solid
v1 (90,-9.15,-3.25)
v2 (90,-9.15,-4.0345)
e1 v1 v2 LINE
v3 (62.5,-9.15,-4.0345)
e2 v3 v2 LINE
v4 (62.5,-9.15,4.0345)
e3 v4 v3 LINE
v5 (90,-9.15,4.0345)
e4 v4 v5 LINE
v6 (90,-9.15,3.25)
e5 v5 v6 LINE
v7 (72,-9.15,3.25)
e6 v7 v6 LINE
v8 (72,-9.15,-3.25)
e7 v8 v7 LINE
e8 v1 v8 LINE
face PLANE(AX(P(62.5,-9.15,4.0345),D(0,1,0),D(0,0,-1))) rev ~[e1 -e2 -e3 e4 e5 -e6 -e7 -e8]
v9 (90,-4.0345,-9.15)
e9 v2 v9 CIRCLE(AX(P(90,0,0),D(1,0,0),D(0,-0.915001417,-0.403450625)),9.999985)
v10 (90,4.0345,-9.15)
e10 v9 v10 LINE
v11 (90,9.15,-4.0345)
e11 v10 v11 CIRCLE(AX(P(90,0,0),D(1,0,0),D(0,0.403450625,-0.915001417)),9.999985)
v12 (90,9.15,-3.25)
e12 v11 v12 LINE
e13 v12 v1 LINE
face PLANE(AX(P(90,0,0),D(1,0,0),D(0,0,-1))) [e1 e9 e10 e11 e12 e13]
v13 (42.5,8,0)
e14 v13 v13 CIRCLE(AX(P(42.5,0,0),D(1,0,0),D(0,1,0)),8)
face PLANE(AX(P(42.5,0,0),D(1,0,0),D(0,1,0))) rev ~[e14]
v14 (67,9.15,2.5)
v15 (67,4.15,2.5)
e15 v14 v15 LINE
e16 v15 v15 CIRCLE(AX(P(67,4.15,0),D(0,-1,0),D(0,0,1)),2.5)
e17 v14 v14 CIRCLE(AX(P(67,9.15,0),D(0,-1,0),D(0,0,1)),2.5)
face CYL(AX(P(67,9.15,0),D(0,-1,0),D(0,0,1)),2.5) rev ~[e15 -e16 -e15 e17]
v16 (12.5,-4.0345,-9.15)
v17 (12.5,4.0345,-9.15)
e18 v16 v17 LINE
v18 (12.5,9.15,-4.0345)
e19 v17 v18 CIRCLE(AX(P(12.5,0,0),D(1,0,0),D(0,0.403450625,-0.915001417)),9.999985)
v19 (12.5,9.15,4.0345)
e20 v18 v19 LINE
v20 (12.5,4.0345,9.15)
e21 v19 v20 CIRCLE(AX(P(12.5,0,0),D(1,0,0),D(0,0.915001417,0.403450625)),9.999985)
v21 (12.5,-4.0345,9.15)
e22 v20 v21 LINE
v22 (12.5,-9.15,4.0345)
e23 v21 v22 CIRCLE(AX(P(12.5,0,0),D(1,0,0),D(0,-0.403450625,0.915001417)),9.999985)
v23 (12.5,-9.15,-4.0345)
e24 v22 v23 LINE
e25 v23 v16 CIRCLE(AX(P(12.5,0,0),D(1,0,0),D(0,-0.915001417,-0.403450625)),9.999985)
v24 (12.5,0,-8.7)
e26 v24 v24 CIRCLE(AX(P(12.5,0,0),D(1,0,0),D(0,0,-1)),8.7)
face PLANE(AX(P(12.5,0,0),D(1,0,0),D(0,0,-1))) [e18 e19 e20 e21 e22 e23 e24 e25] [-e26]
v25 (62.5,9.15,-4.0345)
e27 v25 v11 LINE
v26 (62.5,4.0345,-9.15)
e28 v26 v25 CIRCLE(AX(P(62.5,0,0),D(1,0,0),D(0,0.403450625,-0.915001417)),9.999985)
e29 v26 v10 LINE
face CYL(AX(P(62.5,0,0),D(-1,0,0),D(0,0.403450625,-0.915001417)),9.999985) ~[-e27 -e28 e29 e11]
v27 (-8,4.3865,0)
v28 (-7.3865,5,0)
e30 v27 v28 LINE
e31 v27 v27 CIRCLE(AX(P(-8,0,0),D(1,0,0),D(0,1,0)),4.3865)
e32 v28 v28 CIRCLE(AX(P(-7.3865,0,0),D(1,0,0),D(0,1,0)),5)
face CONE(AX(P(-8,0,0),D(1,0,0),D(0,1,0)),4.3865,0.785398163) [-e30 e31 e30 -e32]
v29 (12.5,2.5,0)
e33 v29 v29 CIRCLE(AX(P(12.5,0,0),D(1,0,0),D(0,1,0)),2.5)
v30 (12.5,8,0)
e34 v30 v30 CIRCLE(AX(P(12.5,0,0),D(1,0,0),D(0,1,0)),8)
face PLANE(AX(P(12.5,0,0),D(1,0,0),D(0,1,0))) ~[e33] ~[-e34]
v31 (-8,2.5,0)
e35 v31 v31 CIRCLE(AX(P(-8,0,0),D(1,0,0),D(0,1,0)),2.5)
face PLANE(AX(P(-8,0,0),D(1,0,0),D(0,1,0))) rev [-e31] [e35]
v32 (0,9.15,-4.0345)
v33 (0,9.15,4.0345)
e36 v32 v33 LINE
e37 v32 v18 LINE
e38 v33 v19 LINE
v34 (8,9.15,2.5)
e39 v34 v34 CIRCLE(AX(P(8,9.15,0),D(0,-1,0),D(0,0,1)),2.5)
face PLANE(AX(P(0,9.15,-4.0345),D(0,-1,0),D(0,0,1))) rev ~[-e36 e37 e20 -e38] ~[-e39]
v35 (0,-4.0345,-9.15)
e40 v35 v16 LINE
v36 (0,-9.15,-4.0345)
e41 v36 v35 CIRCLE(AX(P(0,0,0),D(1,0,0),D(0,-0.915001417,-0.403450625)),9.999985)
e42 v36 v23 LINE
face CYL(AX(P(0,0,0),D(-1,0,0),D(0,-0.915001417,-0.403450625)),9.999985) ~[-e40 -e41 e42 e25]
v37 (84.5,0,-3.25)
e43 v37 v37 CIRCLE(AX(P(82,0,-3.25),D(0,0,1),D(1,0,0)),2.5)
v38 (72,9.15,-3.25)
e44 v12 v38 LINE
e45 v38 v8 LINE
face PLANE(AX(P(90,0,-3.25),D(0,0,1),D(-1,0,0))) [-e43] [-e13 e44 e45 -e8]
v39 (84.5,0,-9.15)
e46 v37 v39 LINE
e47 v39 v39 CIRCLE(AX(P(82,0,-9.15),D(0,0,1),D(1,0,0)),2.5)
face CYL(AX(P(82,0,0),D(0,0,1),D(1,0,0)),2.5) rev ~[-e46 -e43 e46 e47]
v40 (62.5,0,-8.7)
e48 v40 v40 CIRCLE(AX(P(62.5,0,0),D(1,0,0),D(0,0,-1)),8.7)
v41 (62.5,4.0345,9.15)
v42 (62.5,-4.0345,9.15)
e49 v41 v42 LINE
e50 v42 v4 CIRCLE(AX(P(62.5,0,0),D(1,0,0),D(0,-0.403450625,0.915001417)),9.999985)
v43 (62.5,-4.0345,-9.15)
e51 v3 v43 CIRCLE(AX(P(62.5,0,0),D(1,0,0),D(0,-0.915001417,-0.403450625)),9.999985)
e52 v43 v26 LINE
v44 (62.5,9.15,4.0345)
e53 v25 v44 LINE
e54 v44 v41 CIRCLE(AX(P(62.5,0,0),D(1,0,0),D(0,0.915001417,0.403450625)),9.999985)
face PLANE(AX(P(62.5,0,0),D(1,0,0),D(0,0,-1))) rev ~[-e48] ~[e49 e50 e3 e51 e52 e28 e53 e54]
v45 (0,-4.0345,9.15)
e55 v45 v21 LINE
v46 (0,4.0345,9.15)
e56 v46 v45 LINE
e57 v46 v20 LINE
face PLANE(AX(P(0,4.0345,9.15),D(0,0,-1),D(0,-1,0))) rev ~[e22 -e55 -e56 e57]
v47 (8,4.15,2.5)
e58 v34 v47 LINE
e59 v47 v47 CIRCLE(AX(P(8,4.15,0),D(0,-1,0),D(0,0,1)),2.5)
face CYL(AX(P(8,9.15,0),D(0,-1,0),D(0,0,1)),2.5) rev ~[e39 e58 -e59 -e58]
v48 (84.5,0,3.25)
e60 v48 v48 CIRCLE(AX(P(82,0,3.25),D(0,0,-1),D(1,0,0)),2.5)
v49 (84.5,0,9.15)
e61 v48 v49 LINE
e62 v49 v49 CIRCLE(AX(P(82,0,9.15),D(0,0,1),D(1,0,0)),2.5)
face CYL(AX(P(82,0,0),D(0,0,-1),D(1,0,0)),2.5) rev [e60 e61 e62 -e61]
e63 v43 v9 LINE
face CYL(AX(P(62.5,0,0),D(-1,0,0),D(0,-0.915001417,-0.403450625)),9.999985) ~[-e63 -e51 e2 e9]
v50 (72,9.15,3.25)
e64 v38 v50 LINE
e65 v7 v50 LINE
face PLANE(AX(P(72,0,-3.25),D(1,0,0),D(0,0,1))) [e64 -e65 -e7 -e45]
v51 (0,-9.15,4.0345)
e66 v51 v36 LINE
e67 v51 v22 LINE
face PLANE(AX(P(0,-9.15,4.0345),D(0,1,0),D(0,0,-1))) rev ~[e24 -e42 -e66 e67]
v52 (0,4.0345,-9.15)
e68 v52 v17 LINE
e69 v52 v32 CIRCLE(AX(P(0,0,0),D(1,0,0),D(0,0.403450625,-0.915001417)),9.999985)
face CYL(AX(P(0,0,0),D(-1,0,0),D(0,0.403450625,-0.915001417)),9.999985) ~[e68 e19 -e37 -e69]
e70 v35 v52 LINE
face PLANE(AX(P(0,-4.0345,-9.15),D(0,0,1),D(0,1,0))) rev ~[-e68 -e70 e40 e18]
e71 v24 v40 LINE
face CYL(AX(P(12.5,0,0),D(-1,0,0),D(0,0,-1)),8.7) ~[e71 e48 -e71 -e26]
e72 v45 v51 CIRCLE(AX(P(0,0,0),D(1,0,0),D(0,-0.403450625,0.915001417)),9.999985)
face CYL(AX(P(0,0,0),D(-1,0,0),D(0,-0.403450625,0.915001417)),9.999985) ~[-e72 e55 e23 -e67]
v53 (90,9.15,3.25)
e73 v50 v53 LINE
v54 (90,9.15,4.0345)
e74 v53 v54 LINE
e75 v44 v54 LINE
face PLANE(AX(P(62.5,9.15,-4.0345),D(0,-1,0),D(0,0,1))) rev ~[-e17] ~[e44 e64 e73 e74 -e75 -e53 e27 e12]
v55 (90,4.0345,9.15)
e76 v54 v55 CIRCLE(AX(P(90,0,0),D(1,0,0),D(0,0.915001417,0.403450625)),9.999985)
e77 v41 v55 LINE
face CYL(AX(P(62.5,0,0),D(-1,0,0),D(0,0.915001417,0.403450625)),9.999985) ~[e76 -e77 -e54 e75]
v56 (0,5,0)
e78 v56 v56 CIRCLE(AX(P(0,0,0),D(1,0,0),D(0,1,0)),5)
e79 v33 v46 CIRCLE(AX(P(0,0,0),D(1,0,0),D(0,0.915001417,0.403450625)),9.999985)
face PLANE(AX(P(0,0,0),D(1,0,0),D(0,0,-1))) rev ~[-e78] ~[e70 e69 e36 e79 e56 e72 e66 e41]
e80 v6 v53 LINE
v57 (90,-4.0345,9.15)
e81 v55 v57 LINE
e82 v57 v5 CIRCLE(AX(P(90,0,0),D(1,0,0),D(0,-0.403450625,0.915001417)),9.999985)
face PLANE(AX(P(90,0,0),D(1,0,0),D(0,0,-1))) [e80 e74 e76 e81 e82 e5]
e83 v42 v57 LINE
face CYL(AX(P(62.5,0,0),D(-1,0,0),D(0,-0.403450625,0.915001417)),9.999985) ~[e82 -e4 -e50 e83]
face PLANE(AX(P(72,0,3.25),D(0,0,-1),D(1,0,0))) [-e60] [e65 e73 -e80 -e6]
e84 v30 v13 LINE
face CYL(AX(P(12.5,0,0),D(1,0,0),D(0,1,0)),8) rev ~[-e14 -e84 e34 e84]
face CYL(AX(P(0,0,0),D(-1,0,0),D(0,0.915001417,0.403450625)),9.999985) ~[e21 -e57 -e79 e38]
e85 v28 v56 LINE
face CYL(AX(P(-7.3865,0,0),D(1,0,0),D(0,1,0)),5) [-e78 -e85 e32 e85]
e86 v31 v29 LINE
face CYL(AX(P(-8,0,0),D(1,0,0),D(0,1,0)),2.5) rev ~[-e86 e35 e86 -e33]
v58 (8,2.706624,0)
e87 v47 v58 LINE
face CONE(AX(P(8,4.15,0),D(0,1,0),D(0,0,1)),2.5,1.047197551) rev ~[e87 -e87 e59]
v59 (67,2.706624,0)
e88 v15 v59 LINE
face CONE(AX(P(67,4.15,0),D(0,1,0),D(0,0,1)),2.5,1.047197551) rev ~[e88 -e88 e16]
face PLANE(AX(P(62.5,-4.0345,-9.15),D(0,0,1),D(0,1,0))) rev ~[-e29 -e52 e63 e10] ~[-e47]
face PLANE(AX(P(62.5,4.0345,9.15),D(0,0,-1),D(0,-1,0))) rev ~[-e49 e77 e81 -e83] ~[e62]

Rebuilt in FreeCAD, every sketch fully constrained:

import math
import FreeCAD as App
import Part
import Sketcher
Q = App.Units.Quantity


def add_polygon(sketch, points):
    """Adds a closed chain of lines whose ends are joined by coincident constraints."""
    first, n = sketch.GeometryCount, len(points)
    for a, b in zip(points, points[1:] + points[:1]):
        sketch.addGeometry(Part.LineSegment(App.Vector(*a, 0), App.Vector(*b, 0)), False)
    for i in range(n):
        sketch.addConstraint(Sketcher.Constraint("Coincident", first + i, 2, first + (i + 1) % n, 1))

doc = App.newDocument("Part")
body = doc.addObject("PartDesign::Body", "Body")

# Sketch on XY plane
sketch1 = body.newObject("Sketcher::SketchObject", "Sketch")
sketch1.AttachmentSupport = (doc.getObject("XY_Plane"), [""])
sketch1.MapMode = "FlatFace"
add_polygon(sketch1, [(-8, 0), (0, 0), (0, 5), (-7.3865, 5), (-8, 4.3865)])  # lines 0-4
sketch1.addConstraint([
    Sketcher.Constraint("Horizontal", 0),
    Sketcher.Constraint("Vertical", 1),
    Sketcher.Constraint("Horizontal", 2),
    Sketcher.Constraint("Vertical", 4),
    Sketcher.Constraint("Coincident", 0, 2, -1, 1),
    Sketcher.Constraint("DistanceX", 0, 1, 0, 2, 8.0),
    Sketcher.Constraint("DistanceY", 1, 1, 1, 2, 5.0),
    Sketcher.Constraint("Angle", 3, Q("-135 deg")),
    Sketcher.Constraint("DistanceX", 2, 2, 2, 1, 7.3865),
])
revolution = body.newObject("PartDesign::Revolution", "Revolution")
revolution.Profile = sketch1
revolution.ReferenceAxis = (sketch1, ["H_Axis"])
revolution.Angle = 360

# Sketch on YZ plane
sketch2 = body.newObject("Sketcher::SketchObject", "Sketch001")
sketch2.AttachmentSupport = (doc.getObject("YZ_Plane"), [""])
sketch2.MapMode = "FlatFace"
sketch2.addGeometry([
    Part.ArcOfCircle(Part.Circle(App.Vector(0, 0, 0), App.Vector(0, 0, 1), 9.999985), math.radians(23.794072), math.radians(66.205928)),  # 0
    Part.LineSegment(App.Vector(4.0345, 9.15, 0), App.Vector(-4.0345, 9.15, 0)),  # 1
    Part.ArcOfCircle(Part.Circle(App.Vector(0, 0, 0), App.Vector(0, 0, 1), 9.999985), math.radians(113.794072), math.radians(156.205928)),  # 2
    Part.LineSegment(App.Vector(-9.15, 4.0345, 0), App.Vector(-9.15, -4.0345, 0)),  # 3
    Part.ArcOfCircle(Part.Circle(App.Vector(0, 0, 0), App.Vector(0, 0, 1), 9.999985), math.radians(-156.205928), math.radians(-113.794072)),  # 4
    Part.LineSegment(App.Vector(-4.0345, -9.15, 0), App.Vector(4.0345, -9.15, 0)),  # 5
    Part.ArcOfCircle(Part.Circle(App.Vector(0, 0, 0), App.Vector(0, 0, 1), 9.999985), math.radians(-66.205928), math.radians(-23.794072)),  # 6
    Part.LineSegment(App.Vector(9.15, -4.0345, 0), App.Vector(9.15, 4.0345, 0)),  # 7
], False)
sketch2.addConstraint([
    Sketcher.Constraint("Coincident", 0, 2, 1, 1),
    Sketcher.Constraint("Coincident", 1, 2, 2, 1),
    Sketcher.Constraint("Coincident", 2, 2, 3, 1),
    Sketcher.Constraint("Coincident", 3, 2, 4, 1),
    Sketcher.Constraint("Coincident", 4, 2, 5, 1),
    Sketcher.Constraint("Coincident", 5, 2, 6, 1),
    Sketcher.Constraint("Coincident", 6, 2, 7, 1),
    Sketcher.Constraint("Coincident", 7, 2, 0, 1),
    Sketcher.Constraint("Horizontal", 1),
    Sketcher.Constraint("Vertical", 3),
    Sketcher.Constraint("Horizontal", 5),
    Sketcher.Constraint("Vertical", 7),
    Sketcher.Constraint("Coincident", 0, 3, -1, 1),
    Sketcher.Constraint("Coincident", 2, 3, -1, 1),
    Sketcher.Constraint("Coincident", 4, 3, -1, 1),
    Sketcher.Constraint("Coincident", 6, 3, -1, 1),
    Sketcher.Constraint("Equal", 0, 2),
    Sketcher.Constraint("Equal", 2, 4),
    Sketcher.Constraint("Equal", 4, 6),
    Sketcher.Constraint("Horizontal", 3, 2, 6, 2),
    Sketcher.Constraint("Vertical", 1, 2, 4, 2),
    Sketcher.Constraint("Equal", 5, 3),
    Sketcher.Constraint("Radius", 0, 10.0),
    Sketcher.Constraint("DistanceX", 1, 2, 1, 1, 8.069),
])
pad1 = body.newObject("PartDesign::Pad", "Pad")
pad1.Profile = sketch2
pad1.Length = 12.5

# Sketch on YZ plane
sketch3 = body.newObject("Sketcher::SketchObject", "Sketch002")
sketch3.AttachmentSupport = (doc.getObject("YZ_Plane"), [""])
sketch3.MapMode = "FlatFace"
sketch3.AttachmentOffset = App.Placement(App.Vector(0, 0, 12.5), App.Rotation())
sketch3.addGeometry(Part.Circle(App.Vector(0, 0, 0), App.Vector(0, 0, 1), 8.7), False)
sketch3.addConstraint([
    Sketcher.Constraint("Coincident", 0, 3, -1, 1),
    Sketcher.Constraint("Diameter", 0, 17.4),
])
pad2 = body.newObject("PartDesign::Pad", "Pad001")
pad2.Profile = sketch3
pad2.Length = 50

# Sketch on YZ plane
sketch4 = body.newObject("Sketcher::SketchObject", "Sketch003")
sketch4.AttachmentSupport = (doc.getObject("YZ_Plane"), [""])
sketch4.MapMode = "FlatFace"
sketch4.AttachmentOffset = App.Placement(App.Vector(0, 0, 62.5), App.Rotation())
sketch4.addGeometry([
    Part.ArcOfCircle(Part.Circle(App.Vector(0, 0, 0), App.Vector(0, 0, 1), 9.999985), math.radians(23.794072), math.radians(66.205928)),  # 0
    Part.LineSegment(App.Vector(4.0345, 9.15, 0), App.Vector(-4.0345, 9.15, 0)),  # 1
    Part.ArcOfCircle(Part.Circle(App.Vector(0, 0, 0), App.Vector(0, 0, 1), 9.999985), math.radians(113.794072), math.radians(156.205928)),  # 2
    Part.LineSegment(App.Vector(-9.15, 4.0345, 0), App.Vector(-9.15, -4.0345, 0)),  # 3
    Part.ArcOfCircle(Part.Circle(App.Vector(0, 0, 0), App.Vector(0, 0, 1), 9.999985), math.radians(-156.205928), math.radians(-113.794072)),  # 4
    Part.LineSegment(App.Vector(-4.0345, -9.15, 0), App.Vector(4.0345, -9.15, 0)),  # 5
    Part.ArcOfCircle(Part.Circle(App.Vector(0, 0, 0), App.Vector(0, 0, 1), 9.999985), math.radians(-66.205928), math.radians(-23.794072)),  # 6
    Part.LineSegment(App.Vector(9.15, -4.0345, 0), App.Vector(9.15, 4.0345, 0)),  # 7
], False)
sketch4.addConstraint([
    Sketcher.Constraint("Coincident", 0, 2, 1, 1),
    Sketcher.Constraint("Coincident", 1, 2, 2, 1),
    Sketcher.Constraint("Coincident", 2, 2, 3, 1),
    Sketcher.Constraint("Coincident", 3, 2, 4, 1),
    Sketcher.Constraint("Coincident", 4, 2, 5, 1),
    Sketcher.Constraint("Coincident", 5, 2, 6, 1),
    Sketcher.Constraint("Coincident", 6, 2, 7, 1),
    Sketcher.Constraint("Coincident", 7, 2, 0, 1),
    Sketcher.Constraint("Horizontal", 1),
    Sketcher.Constraint("Vertical", 3),
    Sketcher.Constraint("Horizontal", 5),
    Sketcher.Constraint("Vertical", 7),
    Sketcher.Constraint("Coincident", 0, 3, -1, 1),
    Sketcher.Constraint("Coincident", 2, 3, -1, 1),
    Sketcher.Constraint("Coincident", 4, 3, -1, 1),
    Sketcher.Constraint("Coincident", 6, 3, -1, 1),
    Sketcher.Constraint("Equal", 0, 2),
    Sketcher.Constraint("Equal", 2, 4),
    Sketcher.Constraint("Equal", 4, 6),
    Sketcher.Constraint("Horizontal", 3, 2, 6, 2),
    Sketcher.Constraint("Vertical", 1, 2, 4, 2),
    Sketcher.Constraint("Equal", 5, 3),
    Sketcher.Constraint("Radius", 0, 10.0),
    Sketcher.Constraint("DistanceX", 1, 2, 1, 1, 8.069),
])
pad3 = body.newObject("PartDesign::Pad", "Pad002")
pad3.Profile = sketch4
pad3.Length = 27.5

# Sketch on XZ plane
sketch5 = body.newObject("Sketcher::SketchObject", "Sketch004")
sketch5.AttachmentSupport = (doc.getObject("XZ_Plane"), [""])
sketch5.MapMode = "FlatFace"
sketch5.AttachmentOffset = App.Placement(App.Vector(0, 0, -9.15), App.Rotation())
sketch5.addGeometry(Part.Circle(App.Vector(8, 0, 0), App.Vector(0, 0, 1), 2.5), False)
sketch5.addConstraint([
    Sketcher.Constraint("PointOnObject", 0, 3, -1),
    Sketcher.Constraint("Diameter", 0, 5.0),
    Sketcher.Constraint("DistanceX", -1, 1, 0, 3, 8.0),
])
doc.recompute()
hole = body.newObject("PartDesign::Hole", "Hole")
hole.Profile = sketch5
hole.ThreadType = "None"
hole.Diameter = 5
hole.DepthType = "Dimension"
hole.Depth = 5
hole.DrillPoint = "Angled"
hole.DrillPointAngle = 120
hole.Reversed = True

# Sketch on XZ plane
sketch6 = body.newObject("Sketcher::SketchObject", "Sketch005")
sketch6.AttachmentSupport = (doc.getObject("XZ_Plane"), [""])
sketch6.MapMode = "FlatFace"
sketch6.AttachmentOffset = App.Placement(App.Vector(0, 0, -9.15), App.Rotation())
sketch6.addGeometry(Part.Circle(App.Vector(67, 0, 0), App.Vector(0, 0, 1), 2.5), False)
sketch6.addConstraint([
    Sketcher.Constraint("PointOnObject", 0, 3, -1),
    Sketcher.Constraint("Diameter", 0, 5.0),
    Sketcher.Constraint("DistanceX", -1, 1, 0, 3, 67.0),
])
doc.recompute()
hole2 = body.newObject("PartDesign::Hole", "Hole001")
hole2.Profile = sketch6
hole2.ThreadType = "None"
hole2.Diameter = 5
hole2.DepthType = "Dimension"
hole2.Depth = 5
hole2.DrillPoint = "Angled"
hole2.DrillPointAngle = 120
hole2.Reversed = True

# Sketch on XY plane
sketch7 = body.newObject("Sketcher::SketchObject", "Sketch006")
sketch7.AttachmentSupport = (doc.getObject("XY_Plane"), [""])
sketch7.MapMode = "FlatFace"
add_polygon(sketch7, [(-8, 0), (42.5, 0), (42.5, 8), (12.5, 8), (12.5, 2.5), (-8, 2.5)])  # lines 0-5
sketch7.addConstraint([
    Sketcher.Constraint("Horizontal", 0),
    Sketcher.Constraint("Vertical", 1),
    Sketcher.Constraint("Horizontal", 2),
    Sketcher.Constraint("Vertical", 3),
    Sketcher.Constraint("Horizontal", 4),
    Sketcher.Constraint("Vertical", 5),
    Sketcher.Constraint("PointOnObject", 0, 2, -1),
    Sketcher.Constraint("DistanceX", 2, 2, 2, 1, 30.0),
    Sketcher.Constraint("DistanceY", 1, 1, 1, 2, 8.0),
    Sketcher.Constraint("DistanceX", 0, 1, 0, 2, 50.5),
    Sketcher.Constraint("DistanceY", 3, 2, 3, 1, 5.5),
    Sketcher.Constraint("DistanceX", 4, 2, -1, 1, 8.0),
])
groove = body.newObject("PartDesign::Groove", "Groove")
groove.Profile = sketch7
groove.ReferenceAxis = (sketch7, ["H_Axis"])
groove.Angle = 360

# Sketch on XZ plane
sketch8 = body.newObject("Sketcher::SketchObject", "Sketch007")
sketch8.AttachmentSupport = (doc.getObject("XZ_Plane"), [""])
sketch8.MapMode = "FlatFace"
add_polygon(sketch8, [(72, -3.25), (72, 3.25), (90, 3.25), (90, -3.25)])  # lines 0-3
sketch8.addConstraint([
    Sketcher.Constraint("Vertical", 0),
    Sketcher.Constraint("Horizontal", 1),
    Sketcher.Constraint("Vertical", 2),
    Sketcher.Constraint("Horizontal", 3),
    Sketcher.Constraint("DistanceX", 1, 1, 1, 2, 18.0),
    Sketcher.Constraint("DistanceY", 0, 1, 0, 2, 6.5),
    Sketcher.Constraint("DistanceX", -1, 1, 0, 2, 72.0),
    Sketcher.Constraint("DistanceY", -1, 1, 0, 2, 3.25),
])
pocket1 = body.newObject("PartDesign::Pocket", "Pocket")
pocket1.Profile = sketch8
pocket1.Length = 18.3
pocket1.Midplane = True

# Sketch on XY plane
sketch9 = body.newObject("Sketcher::SketchObject", "Sketch008")
sketch9.AttachmentSupport = (doc.getObject("XY_Plane"), [""])
sketch9.MapMode = "FlatFace"
sketch9.addGeometry(Part.Circle(App.Vector(82, 0, 0), App.Vector(0, 0, 1), 2.5), False)
sketch9.addConstraint([
    Sketcher.Constraint("PointOnObject", 0, 3, -1),
    Sketcher.Constraint("Diameter", 0, 5.0),
    Sketcher.Constraint("DistanceX", -1, 1, 0, 3, 82.0),
])
pocket2 = body.newObject("PartDesign::Pocket", "Pocket001")
pocket2.Profile = sketch9
pocket2.Length = 18.3
pocket2.Midplane = True

doc.recompute()
